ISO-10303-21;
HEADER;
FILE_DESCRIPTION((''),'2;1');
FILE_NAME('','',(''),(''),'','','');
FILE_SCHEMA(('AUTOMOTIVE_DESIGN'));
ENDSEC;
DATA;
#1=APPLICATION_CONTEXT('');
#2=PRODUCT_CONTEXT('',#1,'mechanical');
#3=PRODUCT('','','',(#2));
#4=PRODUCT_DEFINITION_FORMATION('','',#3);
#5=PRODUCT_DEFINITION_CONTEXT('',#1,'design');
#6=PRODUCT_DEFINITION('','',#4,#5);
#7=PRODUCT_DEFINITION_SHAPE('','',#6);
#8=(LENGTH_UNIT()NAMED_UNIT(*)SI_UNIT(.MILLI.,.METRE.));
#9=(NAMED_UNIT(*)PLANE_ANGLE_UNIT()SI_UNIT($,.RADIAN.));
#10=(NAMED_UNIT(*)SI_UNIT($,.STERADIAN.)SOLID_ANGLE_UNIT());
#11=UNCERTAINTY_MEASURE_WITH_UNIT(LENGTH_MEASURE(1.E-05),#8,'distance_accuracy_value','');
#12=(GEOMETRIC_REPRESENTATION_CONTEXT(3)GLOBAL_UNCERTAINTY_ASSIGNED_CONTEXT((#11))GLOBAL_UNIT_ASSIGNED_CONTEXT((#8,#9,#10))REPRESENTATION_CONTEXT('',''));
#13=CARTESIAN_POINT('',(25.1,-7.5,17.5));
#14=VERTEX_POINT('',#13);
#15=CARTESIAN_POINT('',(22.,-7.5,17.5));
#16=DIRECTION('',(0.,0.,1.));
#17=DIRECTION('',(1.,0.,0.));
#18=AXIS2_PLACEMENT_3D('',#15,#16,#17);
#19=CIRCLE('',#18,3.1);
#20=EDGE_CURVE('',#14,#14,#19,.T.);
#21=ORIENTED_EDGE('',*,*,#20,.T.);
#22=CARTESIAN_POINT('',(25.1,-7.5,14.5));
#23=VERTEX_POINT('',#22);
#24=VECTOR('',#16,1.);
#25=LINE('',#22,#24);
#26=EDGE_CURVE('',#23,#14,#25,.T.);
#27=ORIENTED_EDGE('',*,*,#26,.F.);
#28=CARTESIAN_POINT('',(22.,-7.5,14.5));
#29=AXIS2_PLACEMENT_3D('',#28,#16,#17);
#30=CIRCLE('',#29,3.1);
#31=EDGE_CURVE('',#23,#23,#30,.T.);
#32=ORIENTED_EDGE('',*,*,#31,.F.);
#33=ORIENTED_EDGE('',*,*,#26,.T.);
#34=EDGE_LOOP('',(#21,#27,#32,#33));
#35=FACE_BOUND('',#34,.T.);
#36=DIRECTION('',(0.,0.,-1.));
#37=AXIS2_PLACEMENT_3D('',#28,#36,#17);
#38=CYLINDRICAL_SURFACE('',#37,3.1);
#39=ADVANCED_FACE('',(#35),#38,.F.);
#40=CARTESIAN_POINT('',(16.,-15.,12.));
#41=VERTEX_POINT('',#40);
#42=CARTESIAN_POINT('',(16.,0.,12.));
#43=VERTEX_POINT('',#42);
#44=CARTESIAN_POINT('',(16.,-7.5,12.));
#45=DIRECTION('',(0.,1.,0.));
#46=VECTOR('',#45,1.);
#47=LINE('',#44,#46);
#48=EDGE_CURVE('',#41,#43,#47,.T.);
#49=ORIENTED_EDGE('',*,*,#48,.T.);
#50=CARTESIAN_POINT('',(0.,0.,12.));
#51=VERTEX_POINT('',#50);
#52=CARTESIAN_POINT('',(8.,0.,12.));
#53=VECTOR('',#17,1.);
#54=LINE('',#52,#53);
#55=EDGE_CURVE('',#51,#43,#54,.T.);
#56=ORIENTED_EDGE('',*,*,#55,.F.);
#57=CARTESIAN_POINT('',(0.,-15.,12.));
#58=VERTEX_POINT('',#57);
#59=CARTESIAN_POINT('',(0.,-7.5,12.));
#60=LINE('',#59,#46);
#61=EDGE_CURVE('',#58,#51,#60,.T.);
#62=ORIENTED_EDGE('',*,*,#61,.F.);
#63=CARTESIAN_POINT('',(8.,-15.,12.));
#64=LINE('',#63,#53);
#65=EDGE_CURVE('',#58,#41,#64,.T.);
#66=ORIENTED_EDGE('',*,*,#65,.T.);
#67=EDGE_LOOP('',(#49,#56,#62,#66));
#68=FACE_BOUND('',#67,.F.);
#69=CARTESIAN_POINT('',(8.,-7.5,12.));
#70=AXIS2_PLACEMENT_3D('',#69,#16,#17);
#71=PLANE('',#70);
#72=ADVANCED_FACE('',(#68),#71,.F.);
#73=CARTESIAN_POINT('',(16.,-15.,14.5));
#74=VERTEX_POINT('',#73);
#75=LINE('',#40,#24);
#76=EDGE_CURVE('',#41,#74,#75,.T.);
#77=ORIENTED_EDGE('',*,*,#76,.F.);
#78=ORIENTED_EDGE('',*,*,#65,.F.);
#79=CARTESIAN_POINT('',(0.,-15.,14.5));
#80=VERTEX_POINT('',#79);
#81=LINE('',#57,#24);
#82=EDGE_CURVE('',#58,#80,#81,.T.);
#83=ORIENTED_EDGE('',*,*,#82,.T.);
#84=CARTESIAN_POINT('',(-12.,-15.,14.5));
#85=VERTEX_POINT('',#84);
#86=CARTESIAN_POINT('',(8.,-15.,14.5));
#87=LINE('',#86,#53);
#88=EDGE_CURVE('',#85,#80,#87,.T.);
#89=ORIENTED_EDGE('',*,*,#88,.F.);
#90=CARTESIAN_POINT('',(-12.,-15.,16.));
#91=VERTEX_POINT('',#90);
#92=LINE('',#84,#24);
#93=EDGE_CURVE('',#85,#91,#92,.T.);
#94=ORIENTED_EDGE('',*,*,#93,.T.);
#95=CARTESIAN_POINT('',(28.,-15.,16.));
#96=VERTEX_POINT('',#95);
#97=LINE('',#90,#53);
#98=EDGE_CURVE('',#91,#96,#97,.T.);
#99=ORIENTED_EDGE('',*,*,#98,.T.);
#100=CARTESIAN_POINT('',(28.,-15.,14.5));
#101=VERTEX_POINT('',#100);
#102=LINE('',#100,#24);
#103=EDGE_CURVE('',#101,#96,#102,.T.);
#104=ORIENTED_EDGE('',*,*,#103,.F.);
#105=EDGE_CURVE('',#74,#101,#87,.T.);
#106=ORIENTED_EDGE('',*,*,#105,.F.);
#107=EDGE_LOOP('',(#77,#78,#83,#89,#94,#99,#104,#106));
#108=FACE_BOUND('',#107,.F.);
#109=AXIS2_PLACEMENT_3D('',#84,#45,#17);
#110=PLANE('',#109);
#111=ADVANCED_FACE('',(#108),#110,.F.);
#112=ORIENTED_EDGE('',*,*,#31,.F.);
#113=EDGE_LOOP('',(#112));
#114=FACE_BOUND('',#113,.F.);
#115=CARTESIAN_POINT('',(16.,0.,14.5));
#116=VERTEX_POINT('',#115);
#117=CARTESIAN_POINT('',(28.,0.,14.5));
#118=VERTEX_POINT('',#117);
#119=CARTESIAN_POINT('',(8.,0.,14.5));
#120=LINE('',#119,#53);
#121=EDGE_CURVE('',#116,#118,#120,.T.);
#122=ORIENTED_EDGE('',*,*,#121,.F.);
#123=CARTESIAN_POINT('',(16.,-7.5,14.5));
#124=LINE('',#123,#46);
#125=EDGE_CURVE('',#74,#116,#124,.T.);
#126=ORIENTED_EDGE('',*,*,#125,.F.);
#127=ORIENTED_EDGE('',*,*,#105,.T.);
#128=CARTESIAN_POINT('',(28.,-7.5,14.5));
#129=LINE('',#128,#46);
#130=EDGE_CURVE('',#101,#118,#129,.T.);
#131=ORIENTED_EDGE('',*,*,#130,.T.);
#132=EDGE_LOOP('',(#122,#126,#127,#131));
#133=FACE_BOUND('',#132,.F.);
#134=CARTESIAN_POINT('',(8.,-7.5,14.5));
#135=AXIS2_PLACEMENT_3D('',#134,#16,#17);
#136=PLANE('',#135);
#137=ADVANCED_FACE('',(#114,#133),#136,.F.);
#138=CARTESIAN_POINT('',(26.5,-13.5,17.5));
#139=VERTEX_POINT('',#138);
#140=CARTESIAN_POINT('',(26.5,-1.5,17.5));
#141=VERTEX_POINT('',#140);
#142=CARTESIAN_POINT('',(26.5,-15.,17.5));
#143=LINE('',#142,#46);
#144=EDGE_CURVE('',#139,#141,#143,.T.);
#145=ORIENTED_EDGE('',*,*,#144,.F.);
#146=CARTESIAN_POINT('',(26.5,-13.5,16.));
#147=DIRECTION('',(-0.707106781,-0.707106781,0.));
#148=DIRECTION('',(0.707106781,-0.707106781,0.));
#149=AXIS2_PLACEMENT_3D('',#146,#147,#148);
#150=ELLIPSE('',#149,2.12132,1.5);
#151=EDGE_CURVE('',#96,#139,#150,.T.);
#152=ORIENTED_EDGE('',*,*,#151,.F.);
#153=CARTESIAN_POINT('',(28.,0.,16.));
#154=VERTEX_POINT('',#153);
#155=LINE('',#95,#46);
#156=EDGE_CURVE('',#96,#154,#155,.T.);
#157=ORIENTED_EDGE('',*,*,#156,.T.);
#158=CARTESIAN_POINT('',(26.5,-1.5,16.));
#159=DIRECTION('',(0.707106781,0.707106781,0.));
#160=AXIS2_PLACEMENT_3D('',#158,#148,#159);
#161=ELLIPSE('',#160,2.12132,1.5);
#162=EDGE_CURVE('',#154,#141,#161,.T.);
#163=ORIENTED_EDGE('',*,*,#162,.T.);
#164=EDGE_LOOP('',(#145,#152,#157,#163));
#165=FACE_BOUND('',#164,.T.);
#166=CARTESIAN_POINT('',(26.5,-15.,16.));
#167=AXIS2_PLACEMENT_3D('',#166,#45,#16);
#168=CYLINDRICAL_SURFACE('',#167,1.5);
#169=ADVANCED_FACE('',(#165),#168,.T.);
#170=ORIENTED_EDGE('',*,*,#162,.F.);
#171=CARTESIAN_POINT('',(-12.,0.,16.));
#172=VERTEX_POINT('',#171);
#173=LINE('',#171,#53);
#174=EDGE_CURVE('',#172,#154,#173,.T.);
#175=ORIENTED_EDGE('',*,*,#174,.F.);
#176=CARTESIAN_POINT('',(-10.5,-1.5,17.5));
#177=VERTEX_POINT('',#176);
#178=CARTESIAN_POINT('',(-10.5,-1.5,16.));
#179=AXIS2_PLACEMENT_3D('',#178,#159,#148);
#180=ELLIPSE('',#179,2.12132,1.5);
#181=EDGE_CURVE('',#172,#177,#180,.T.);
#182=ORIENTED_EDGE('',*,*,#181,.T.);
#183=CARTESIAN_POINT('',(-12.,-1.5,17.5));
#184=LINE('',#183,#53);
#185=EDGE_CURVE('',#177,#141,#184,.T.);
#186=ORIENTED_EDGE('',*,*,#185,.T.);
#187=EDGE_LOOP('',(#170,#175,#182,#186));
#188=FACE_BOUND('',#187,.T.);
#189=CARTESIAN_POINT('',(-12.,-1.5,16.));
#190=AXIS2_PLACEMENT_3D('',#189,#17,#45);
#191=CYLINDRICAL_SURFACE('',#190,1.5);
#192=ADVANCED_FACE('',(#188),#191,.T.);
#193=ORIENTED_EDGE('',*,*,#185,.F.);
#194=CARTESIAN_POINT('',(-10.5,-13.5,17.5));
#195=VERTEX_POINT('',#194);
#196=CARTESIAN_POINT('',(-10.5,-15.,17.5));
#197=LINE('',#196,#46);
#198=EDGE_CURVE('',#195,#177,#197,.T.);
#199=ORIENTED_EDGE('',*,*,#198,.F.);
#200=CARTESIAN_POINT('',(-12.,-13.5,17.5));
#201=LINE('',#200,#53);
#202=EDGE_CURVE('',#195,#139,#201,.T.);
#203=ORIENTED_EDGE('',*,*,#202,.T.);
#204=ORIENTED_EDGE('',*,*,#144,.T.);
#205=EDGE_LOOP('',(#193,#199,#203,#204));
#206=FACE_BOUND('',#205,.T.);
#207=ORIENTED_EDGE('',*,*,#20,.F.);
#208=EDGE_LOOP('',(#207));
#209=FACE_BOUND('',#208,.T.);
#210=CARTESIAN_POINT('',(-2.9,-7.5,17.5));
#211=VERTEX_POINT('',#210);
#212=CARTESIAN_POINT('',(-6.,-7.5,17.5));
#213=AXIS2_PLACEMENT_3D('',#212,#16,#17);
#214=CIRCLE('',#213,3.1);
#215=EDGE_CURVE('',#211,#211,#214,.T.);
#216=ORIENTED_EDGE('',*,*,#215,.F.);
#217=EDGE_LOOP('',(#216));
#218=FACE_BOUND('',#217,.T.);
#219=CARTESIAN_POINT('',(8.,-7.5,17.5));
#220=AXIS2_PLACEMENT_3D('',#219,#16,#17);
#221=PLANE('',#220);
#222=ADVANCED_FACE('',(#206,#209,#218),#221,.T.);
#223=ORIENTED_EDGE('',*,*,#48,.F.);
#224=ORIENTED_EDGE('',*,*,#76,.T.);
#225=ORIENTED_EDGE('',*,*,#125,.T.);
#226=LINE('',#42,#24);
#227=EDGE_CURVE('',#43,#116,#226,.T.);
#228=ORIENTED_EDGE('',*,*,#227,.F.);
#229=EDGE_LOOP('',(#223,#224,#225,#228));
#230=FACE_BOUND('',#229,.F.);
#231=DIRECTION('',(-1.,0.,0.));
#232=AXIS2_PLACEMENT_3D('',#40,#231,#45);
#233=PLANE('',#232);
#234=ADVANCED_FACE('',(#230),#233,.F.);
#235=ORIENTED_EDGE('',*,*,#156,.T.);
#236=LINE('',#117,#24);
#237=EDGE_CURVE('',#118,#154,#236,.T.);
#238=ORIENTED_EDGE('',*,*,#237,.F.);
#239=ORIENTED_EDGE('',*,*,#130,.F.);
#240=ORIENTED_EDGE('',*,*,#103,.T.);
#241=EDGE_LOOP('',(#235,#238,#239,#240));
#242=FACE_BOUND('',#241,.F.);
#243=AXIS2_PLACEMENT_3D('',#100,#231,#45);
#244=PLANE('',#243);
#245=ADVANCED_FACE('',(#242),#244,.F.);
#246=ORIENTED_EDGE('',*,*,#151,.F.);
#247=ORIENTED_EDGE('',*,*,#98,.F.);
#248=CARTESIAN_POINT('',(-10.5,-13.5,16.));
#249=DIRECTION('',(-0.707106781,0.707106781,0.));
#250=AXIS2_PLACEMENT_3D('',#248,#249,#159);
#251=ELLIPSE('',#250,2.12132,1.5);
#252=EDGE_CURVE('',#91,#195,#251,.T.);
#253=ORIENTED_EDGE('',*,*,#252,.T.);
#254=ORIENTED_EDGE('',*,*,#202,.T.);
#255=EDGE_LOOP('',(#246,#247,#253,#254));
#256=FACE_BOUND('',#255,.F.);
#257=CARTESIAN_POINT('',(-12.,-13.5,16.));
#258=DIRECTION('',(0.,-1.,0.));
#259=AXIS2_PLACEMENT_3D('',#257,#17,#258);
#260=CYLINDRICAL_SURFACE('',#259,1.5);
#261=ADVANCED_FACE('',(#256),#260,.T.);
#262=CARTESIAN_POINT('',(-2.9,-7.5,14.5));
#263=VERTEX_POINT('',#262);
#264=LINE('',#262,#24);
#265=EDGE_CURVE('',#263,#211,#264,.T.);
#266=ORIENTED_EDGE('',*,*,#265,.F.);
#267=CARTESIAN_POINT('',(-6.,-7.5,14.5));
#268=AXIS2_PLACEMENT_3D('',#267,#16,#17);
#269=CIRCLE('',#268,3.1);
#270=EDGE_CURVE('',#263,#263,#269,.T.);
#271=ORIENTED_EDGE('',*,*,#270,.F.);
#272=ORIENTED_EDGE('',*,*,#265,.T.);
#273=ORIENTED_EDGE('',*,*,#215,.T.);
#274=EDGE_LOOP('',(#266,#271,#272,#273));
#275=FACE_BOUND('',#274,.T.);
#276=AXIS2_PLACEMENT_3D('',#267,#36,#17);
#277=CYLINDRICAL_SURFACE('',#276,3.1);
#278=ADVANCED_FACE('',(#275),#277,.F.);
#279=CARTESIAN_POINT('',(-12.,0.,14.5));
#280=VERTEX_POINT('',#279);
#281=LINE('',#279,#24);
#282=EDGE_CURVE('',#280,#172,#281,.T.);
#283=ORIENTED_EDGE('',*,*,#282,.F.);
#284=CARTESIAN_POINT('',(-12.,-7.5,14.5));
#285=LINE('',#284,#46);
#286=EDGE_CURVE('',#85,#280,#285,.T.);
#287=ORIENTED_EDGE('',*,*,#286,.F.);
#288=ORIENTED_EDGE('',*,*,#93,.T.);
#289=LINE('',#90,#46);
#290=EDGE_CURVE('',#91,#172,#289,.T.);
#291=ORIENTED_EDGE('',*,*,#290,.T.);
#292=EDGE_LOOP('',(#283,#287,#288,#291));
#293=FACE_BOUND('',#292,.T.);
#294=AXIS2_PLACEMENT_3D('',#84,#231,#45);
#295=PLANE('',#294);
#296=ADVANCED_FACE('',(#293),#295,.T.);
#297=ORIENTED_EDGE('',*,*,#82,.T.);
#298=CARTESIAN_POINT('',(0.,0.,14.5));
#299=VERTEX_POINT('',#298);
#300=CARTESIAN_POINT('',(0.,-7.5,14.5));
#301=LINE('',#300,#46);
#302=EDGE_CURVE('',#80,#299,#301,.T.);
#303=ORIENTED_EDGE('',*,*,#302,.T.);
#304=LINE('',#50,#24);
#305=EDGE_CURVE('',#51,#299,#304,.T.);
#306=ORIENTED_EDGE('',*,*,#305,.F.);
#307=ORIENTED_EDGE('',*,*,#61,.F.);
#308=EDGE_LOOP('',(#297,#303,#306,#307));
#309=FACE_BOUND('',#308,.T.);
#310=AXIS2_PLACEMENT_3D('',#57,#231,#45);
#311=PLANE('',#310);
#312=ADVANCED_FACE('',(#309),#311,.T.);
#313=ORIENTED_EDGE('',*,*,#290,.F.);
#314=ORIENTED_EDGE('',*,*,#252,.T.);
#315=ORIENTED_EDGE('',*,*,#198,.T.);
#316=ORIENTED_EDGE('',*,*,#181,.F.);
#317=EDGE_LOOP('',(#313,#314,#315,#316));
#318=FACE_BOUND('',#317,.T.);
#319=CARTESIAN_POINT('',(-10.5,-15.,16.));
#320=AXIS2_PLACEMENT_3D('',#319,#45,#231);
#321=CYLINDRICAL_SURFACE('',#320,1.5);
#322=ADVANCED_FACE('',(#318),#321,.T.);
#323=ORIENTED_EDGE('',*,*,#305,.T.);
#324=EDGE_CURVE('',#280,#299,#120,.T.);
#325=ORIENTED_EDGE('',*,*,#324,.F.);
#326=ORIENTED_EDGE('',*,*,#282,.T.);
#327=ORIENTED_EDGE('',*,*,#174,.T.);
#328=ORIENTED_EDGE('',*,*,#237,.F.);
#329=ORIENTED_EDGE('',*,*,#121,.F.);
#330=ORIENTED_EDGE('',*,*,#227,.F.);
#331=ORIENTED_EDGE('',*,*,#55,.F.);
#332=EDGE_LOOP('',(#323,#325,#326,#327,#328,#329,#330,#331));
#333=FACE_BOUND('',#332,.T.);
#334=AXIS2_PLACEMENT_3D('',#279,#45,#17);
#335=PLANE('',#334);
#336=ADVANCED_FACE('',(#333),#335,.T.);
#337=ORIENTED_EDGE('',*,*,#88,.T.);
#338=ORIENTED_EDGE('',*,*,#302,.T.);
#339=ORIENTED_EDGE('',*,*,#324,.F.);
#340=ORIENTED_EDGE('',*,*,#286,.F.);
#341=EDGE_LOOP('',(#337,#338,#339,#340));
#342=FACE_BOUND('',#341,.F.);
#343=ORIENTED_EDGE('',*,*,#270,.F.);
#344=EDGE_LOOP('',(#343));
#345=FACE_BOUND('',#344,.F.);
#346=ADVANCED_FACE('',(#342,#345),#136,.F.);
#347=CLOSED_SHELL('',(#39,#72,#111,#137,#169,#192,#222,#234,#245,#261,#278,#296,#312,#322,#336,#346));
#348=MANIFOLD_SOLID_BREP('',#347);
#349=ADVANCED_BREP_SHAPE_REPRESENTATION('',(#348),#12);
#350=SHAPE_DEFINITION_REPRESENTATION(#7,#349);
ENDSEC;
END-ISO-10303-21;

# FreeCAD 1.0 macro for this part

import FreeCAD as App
import Part
import Sketcher

V = App.Vector
Q = App.Units.Quantity


def edges_at(feature, points):
    """Names of the edges that pass closest to the given points."""
    edges = feature.Shape.Edges
    near = lambda p: min(range(len(edges)), key=lambda i: edges[i].distToShape(Part.Vertex(*p))[0])
    return sorted({f"Edge{near(p) + 1}" for p in points})


def add_polygon(sketch, points):
    """Adds a closed chain of lines whose ends are joined by coincident constraints."""
    first, n = sketch.GeometryCount, len(points)
    for a, b in zip(points, points[1:] + points[:1]):
        sketch.addGeometry(Part.LineSegment(App.Vector(*a, 0), App.Vector(*b, 0)), False)
    for i in range(n):
        sketch.addConstraint(Sketcher.Constraint("Coincident", first + i, 2, first + (i + 1) % n, 1))

doc = App.newDocument("Part")
body = doc.addObject("PartDesign::Body", "Body")

sketch1 = doc.addObject("Sketcher::SketchObject", "Sketch")
body.addObject(sketch1)
sketch1.AttachmentSupport = (doc.XY_Plane, [""])
sketch1.MapMode = "FlatFace"
sketch1.AttachmentOffset = App.Placement(V(0, 0, 12), App.Rotation())
add_polygon(sketch1, [(0, 0), (0, -15), (16, -15), (16, 0)])
sketch1.addConstraint([
    Sketcher.Constraint("Vertical", 0),
    Sketcher.Constraint("Horizontal", 1),
    Sketcher.Constraint("Vertical", 2),
    Sketcher.Constraint("Horizontal", 3),
    Sketcher.Constraint("Coincident", 3, 2, -1, 1),
    Sketcher.Constraint("DistanceX", 1, 1, 1, 2, Q("16 mm")),
    Sketcher.Constraint("DistanceY", 0, 2, 0, 1, Q("15 mm")),
])
pad1 = doc.addObject("PartDesign::Pad", "Pad")
body.addObject(pad1)
pad1.Profile = sketch1
pad1.Length = 2.5

sketch2 = doc.addObject("Sketcher::SketchObject", "Sketch001")
body.addObject(sketch2)
sketch2.AttachmentSupport = (doc.XY_Plane, [""])
sketch2.MapMode = "FlatFace"
sketch2.AttachmentOffset = App.Placement(V(0, 0, 14.5), App.Rotation())
add_polygon(sketch2, [(-12, 0), (-12, -15), (28, -15), (28, 0)])
sketch2.addGeometry(Part.Circle(V(-6, -7.5, 0), V(0, 0, 1), 3.1), False)
sketch2.addGeometry(Part.Circle(V(22, -7.5, 0), V(0, 0, 1), 3.1), False)
sketch2.addConstraint([
    Sketcher.Constraint("Vertical", 0),
    Sketcher.Constraint("Horizontal", 1),
    Sketcher.Constraint("Vertical", 2),
    Sketcher.Constraint("Horizontal", 3),
    Sketcher.Constraint("Equal", 4, 5),
    Sketcher.Constraint("PointOnObject", 2, 2, -1),
    Sketcher.Constraint("Horizontal", 4, 3, 5, 3),
    Sketcher.Constraint("Diameter", 4, Q("6.2 mm")),
    Sketcher.Constraint("DistanceX", 1, 1, 1, 2, Q("40 mm")),
    Sketcher.Constraint("DistanceY", 0, 2, 0, 1, Q("15 mm")),
    Sketcher.Constraint("DistanceX", 4, 3, -1, 1, Q("6 mm")),
    Sketcher.Constraint("DistanceX", -1, 1, 5, 3, Q("22 mm")),
    Sketcher.Constraint("DistanceX", 0, 2, -1, 1, Q("12 mm")),
    Sketcher.Constraint("DistanceY", 4, 3, -1, 1, Q("7.5 mm")),
])
pad2 = doc.addObject("PartDesign::Pad", "Pad001")
body.addObject(pad2)
pad2.Profile = sketch2
pad2.Length = 3
doc.recompute()

fillet = doc.addObject("PartDesign::Fillet", "Fillet")
body.addObject(fillet)
fillet.Base = (pad2, edges_at(pad2, [
    (8, 0, 17.5),
    (8, -15, 17.5),
    (-12, -7.5, 17.5),
    (28, -7.5, 17.5),
]))
fillet.Radius = 1.5

doc.recompute()
